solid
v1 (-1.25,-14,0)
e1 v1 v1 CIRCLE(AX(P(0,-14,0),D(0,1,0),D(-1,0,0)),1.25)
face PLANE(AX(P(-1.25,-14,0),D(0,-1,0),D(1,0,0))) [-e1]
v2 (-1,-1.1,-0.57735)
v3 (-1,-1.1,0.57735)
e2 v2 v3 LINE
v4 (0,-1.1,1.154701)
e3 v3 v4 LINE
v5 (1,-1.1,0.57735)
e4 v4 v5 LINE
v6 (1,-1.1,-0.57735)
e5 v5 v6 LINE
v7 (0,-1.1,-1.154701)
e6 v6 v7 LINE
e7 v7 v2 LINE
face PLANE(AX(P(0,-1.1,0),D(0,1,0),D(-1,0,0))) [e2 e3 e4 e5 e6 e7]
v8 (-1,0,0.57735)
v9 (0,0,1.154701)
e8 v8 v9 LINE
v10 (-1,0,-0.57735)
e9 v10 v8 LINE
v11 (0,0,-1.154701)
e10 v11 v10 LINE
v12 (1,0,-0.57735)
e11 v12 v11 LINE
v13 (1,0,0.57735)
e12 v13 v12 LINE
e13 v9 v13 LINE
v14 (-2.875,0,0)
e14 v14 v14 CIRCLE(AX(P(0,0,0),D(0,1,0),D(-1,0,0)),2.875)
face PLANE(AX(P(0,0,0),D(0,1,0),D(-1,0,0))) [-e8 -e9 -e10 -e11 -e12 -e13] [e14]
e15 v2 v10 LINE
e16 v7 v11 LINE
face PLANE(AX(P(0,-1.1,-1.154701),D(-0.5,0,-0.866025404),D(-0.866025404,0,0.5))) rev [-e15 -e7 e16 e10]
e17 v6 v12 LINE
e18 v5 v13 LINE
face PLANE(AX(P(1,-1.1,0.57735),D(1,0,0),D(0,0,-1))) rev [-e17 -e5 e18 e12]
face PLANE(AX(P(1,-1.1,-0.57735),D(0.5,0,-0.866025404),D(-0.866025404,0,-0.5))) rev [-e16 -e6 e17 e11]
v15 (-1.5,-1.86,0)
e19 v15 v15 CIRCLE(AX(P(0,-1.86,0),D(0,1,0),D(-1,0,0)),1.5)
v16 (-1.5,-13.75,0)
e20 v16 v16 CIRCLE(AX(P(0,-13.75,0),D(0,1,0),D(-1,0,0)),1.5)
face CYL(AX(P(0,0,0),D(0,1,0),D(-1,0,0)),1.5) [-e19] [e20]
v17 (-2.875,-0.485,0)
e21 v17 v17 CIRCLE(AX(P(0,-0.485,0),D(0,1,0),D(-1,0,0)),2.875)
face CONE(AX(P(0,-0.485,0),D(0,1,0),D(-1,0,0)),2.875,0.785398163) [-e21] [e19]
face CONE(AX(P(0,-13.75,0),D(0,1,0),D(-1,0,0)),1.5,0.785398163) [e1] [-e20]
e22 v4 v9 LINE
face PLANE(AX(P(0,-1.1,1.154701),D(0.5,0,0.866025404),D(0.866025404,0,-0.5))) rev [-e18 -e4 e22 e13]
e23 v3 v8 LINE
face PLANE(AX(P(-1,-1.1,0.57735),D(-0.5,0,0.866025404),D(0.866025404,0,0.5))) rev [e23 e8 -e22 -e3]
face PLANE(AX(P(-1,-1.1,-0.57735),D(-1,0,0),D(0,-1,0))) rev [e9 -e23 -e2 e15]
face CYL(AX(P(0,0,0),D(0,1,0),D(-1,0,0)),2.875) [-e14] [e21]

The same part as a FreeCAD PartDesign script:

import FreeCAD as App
import Part
import Sketcher

V = App.Vector
Q = App.Units.Quantity


def add_polygon(sketch, points):
    """Adds a closed chain of lines whose ends are joined by coincident constraints."""
    first, n = sketch.GeometryCount, len(points)
    for a, b in zip(points, points[1:] + points[:1]):
        sketch.addGeometry(Part.LineSegment(App.Vector(*a, 0), App.Vector(*b, 0)), False)
    for i in range(n):
        sketch.addConstraint(Sketcher.Constraint("Coincident", first + i, 2, first + (i + 1) % n, 1))

doc = App.newDocument("Part")
params = doc.addObject("Spreadsheet::Sheet", "Params")
for row, (alias, value) in enumerate([
    ("sketch1_height", "14 mm"),
    ("sketch1_width", "1.25 mm"),
    ("sketch1_height2", "11.89 mm"),
    ("revolution_angle", "360 deg"),
    ("pocket1_length", "1.1 mm"),
], start=1):
    params.set(f"A{row}", alias)
    params.set(f"B{row}", "=" + value)
    params.setAlias(f"B{row}", alias)

body = doc.addObject("PartDesign::Body", "Body")

# Sketch on XY plane
sketch1 = body.newObject("Sketcher::SketchObject", "Sketch")
sketch1.AttachmentSupport = (doc.getObject("XY_Plane"), [""])
sketch1.MapMode = "FlatFace"
add_polygon(sketch1, [(0, -14), (0, 0), (-2.875, 0), (-2.875, -0.485), (-1.5, -1.86), (-1.5, -13.75), (-1.25, -14)])  # lines 0-6
sketch1.addConstraint(Sketcher.Constraint("Vertical", 0))
sketch1.addConstraint(Sketcher.Constraint("Horizontal", 1))
sketch1.addConstraint(Sketcher.Constraint("Vertical", 2))
sketch1.addConstraint(Sketcher.Constraint("Vertical", 4))
sketch1.addConstraint(Sketcher.Constraint("Horizontal", 6))
sketch1.addConstraint(Sketcher.Constraint("Coincident", 0, 2, -1, 1))
sketch1.addConstraint(Sketcher.Constraint("Parallel", 3, 5))
sketch1.addConstraint(Sketcher.Constraint("DistanceY", 0, 1, 0, 2, 14.0))
sketch1.addConstraint(Sketcher.Constraint("Angle", 3, Q("-45 deg")))
sketch1.addConstraint(Sketcher.Constraint("DistanceX", 6, 1, 6, 2, 1.25))
sketch1.addConstraint(Sketcher.Constraint("DistanceY", 4, 2, 4, 1, 11.89))
sketch1.addConstraint(Sketcher.Constraint("DistanceX", 3, 2, -1, 1, 1.5))
sketch1.addConstraint(Sketcher.Constraint("DistanceX", 1, 2, 1, 1, 2.875))
sketch1.setExpression("Constraints[14]", "Params.sketch1_height")
sketch1.setExpression("Constraints[16]", "Params.sketch1_width")
sketch1.setExpression("Constraints[17]", "Params.sketch1_height2")
revolution = body.newObject("PartDesign::Revolution", "Revolution")
revolution.Profile = sketch1
revolution.ReferenceAxis = (sketch1, ["V_Axis"])
revolution.setExpression("Angle", "Params.revolution_angle")

# Sketch on XZ plane
sketch2 = body.newObject("Sketcher::SketchObject", "Sketch001")
sketch2.AttachmentSupport = (doc.getObject("XZ_Plane"), [""])
sketch2.MapMode = "FlatFace"
add_polygon(sketch2, [(-1, -0.57735), (-1, 0.57735), (0, 1.154701), (1, 0.57735), (1, -0.57735), (0, -1.154701)])  # lines 0-5
sketch2.addConstraint(Sketcher.Constraint("Vertical", 0))
sketch2.addConstraint(Sketcher.Constraint("Vertical", 3))
sketch2.addConstraint(Sketcher.Constraint("Symmetric", 0, 2, 3, 2, -1, 1))
sketch2.addConstraint(Sketcher.Constraint("Symmetric", 1, 2, 4, 2, -1, 1))
sketch2.addConstraint(Sketcher.Constraint("PointOnObject", 1, 2, -2))
sketch2.addConstraint(Sketcher.Constraint("Parallel", 2, 5))
sketch2.addConstraint(Sketcher.Constraint("Horizontal", 0, 2, 2, 2))
sketch2.addConstraint(Sketcher.Constraint("Angle", 1, Q("30 deg")))
sketch2.addConstraint(Sketcher.Constraint("DistanceX", 0, 2, -1, 1, 1.0))
sketch2.addConstraint(Sketcher.Constraint("DistanceY", 0, 1, 0, 2, 1.154701))
pocket1 = body.newObject("PartDesign::Pocket", "Pocket")
pocket1.Profile = sketch2
pocket1.setExpression("Length", "Params.pocket1_length")
pocket1.Reversed = True

doc.recompute()
